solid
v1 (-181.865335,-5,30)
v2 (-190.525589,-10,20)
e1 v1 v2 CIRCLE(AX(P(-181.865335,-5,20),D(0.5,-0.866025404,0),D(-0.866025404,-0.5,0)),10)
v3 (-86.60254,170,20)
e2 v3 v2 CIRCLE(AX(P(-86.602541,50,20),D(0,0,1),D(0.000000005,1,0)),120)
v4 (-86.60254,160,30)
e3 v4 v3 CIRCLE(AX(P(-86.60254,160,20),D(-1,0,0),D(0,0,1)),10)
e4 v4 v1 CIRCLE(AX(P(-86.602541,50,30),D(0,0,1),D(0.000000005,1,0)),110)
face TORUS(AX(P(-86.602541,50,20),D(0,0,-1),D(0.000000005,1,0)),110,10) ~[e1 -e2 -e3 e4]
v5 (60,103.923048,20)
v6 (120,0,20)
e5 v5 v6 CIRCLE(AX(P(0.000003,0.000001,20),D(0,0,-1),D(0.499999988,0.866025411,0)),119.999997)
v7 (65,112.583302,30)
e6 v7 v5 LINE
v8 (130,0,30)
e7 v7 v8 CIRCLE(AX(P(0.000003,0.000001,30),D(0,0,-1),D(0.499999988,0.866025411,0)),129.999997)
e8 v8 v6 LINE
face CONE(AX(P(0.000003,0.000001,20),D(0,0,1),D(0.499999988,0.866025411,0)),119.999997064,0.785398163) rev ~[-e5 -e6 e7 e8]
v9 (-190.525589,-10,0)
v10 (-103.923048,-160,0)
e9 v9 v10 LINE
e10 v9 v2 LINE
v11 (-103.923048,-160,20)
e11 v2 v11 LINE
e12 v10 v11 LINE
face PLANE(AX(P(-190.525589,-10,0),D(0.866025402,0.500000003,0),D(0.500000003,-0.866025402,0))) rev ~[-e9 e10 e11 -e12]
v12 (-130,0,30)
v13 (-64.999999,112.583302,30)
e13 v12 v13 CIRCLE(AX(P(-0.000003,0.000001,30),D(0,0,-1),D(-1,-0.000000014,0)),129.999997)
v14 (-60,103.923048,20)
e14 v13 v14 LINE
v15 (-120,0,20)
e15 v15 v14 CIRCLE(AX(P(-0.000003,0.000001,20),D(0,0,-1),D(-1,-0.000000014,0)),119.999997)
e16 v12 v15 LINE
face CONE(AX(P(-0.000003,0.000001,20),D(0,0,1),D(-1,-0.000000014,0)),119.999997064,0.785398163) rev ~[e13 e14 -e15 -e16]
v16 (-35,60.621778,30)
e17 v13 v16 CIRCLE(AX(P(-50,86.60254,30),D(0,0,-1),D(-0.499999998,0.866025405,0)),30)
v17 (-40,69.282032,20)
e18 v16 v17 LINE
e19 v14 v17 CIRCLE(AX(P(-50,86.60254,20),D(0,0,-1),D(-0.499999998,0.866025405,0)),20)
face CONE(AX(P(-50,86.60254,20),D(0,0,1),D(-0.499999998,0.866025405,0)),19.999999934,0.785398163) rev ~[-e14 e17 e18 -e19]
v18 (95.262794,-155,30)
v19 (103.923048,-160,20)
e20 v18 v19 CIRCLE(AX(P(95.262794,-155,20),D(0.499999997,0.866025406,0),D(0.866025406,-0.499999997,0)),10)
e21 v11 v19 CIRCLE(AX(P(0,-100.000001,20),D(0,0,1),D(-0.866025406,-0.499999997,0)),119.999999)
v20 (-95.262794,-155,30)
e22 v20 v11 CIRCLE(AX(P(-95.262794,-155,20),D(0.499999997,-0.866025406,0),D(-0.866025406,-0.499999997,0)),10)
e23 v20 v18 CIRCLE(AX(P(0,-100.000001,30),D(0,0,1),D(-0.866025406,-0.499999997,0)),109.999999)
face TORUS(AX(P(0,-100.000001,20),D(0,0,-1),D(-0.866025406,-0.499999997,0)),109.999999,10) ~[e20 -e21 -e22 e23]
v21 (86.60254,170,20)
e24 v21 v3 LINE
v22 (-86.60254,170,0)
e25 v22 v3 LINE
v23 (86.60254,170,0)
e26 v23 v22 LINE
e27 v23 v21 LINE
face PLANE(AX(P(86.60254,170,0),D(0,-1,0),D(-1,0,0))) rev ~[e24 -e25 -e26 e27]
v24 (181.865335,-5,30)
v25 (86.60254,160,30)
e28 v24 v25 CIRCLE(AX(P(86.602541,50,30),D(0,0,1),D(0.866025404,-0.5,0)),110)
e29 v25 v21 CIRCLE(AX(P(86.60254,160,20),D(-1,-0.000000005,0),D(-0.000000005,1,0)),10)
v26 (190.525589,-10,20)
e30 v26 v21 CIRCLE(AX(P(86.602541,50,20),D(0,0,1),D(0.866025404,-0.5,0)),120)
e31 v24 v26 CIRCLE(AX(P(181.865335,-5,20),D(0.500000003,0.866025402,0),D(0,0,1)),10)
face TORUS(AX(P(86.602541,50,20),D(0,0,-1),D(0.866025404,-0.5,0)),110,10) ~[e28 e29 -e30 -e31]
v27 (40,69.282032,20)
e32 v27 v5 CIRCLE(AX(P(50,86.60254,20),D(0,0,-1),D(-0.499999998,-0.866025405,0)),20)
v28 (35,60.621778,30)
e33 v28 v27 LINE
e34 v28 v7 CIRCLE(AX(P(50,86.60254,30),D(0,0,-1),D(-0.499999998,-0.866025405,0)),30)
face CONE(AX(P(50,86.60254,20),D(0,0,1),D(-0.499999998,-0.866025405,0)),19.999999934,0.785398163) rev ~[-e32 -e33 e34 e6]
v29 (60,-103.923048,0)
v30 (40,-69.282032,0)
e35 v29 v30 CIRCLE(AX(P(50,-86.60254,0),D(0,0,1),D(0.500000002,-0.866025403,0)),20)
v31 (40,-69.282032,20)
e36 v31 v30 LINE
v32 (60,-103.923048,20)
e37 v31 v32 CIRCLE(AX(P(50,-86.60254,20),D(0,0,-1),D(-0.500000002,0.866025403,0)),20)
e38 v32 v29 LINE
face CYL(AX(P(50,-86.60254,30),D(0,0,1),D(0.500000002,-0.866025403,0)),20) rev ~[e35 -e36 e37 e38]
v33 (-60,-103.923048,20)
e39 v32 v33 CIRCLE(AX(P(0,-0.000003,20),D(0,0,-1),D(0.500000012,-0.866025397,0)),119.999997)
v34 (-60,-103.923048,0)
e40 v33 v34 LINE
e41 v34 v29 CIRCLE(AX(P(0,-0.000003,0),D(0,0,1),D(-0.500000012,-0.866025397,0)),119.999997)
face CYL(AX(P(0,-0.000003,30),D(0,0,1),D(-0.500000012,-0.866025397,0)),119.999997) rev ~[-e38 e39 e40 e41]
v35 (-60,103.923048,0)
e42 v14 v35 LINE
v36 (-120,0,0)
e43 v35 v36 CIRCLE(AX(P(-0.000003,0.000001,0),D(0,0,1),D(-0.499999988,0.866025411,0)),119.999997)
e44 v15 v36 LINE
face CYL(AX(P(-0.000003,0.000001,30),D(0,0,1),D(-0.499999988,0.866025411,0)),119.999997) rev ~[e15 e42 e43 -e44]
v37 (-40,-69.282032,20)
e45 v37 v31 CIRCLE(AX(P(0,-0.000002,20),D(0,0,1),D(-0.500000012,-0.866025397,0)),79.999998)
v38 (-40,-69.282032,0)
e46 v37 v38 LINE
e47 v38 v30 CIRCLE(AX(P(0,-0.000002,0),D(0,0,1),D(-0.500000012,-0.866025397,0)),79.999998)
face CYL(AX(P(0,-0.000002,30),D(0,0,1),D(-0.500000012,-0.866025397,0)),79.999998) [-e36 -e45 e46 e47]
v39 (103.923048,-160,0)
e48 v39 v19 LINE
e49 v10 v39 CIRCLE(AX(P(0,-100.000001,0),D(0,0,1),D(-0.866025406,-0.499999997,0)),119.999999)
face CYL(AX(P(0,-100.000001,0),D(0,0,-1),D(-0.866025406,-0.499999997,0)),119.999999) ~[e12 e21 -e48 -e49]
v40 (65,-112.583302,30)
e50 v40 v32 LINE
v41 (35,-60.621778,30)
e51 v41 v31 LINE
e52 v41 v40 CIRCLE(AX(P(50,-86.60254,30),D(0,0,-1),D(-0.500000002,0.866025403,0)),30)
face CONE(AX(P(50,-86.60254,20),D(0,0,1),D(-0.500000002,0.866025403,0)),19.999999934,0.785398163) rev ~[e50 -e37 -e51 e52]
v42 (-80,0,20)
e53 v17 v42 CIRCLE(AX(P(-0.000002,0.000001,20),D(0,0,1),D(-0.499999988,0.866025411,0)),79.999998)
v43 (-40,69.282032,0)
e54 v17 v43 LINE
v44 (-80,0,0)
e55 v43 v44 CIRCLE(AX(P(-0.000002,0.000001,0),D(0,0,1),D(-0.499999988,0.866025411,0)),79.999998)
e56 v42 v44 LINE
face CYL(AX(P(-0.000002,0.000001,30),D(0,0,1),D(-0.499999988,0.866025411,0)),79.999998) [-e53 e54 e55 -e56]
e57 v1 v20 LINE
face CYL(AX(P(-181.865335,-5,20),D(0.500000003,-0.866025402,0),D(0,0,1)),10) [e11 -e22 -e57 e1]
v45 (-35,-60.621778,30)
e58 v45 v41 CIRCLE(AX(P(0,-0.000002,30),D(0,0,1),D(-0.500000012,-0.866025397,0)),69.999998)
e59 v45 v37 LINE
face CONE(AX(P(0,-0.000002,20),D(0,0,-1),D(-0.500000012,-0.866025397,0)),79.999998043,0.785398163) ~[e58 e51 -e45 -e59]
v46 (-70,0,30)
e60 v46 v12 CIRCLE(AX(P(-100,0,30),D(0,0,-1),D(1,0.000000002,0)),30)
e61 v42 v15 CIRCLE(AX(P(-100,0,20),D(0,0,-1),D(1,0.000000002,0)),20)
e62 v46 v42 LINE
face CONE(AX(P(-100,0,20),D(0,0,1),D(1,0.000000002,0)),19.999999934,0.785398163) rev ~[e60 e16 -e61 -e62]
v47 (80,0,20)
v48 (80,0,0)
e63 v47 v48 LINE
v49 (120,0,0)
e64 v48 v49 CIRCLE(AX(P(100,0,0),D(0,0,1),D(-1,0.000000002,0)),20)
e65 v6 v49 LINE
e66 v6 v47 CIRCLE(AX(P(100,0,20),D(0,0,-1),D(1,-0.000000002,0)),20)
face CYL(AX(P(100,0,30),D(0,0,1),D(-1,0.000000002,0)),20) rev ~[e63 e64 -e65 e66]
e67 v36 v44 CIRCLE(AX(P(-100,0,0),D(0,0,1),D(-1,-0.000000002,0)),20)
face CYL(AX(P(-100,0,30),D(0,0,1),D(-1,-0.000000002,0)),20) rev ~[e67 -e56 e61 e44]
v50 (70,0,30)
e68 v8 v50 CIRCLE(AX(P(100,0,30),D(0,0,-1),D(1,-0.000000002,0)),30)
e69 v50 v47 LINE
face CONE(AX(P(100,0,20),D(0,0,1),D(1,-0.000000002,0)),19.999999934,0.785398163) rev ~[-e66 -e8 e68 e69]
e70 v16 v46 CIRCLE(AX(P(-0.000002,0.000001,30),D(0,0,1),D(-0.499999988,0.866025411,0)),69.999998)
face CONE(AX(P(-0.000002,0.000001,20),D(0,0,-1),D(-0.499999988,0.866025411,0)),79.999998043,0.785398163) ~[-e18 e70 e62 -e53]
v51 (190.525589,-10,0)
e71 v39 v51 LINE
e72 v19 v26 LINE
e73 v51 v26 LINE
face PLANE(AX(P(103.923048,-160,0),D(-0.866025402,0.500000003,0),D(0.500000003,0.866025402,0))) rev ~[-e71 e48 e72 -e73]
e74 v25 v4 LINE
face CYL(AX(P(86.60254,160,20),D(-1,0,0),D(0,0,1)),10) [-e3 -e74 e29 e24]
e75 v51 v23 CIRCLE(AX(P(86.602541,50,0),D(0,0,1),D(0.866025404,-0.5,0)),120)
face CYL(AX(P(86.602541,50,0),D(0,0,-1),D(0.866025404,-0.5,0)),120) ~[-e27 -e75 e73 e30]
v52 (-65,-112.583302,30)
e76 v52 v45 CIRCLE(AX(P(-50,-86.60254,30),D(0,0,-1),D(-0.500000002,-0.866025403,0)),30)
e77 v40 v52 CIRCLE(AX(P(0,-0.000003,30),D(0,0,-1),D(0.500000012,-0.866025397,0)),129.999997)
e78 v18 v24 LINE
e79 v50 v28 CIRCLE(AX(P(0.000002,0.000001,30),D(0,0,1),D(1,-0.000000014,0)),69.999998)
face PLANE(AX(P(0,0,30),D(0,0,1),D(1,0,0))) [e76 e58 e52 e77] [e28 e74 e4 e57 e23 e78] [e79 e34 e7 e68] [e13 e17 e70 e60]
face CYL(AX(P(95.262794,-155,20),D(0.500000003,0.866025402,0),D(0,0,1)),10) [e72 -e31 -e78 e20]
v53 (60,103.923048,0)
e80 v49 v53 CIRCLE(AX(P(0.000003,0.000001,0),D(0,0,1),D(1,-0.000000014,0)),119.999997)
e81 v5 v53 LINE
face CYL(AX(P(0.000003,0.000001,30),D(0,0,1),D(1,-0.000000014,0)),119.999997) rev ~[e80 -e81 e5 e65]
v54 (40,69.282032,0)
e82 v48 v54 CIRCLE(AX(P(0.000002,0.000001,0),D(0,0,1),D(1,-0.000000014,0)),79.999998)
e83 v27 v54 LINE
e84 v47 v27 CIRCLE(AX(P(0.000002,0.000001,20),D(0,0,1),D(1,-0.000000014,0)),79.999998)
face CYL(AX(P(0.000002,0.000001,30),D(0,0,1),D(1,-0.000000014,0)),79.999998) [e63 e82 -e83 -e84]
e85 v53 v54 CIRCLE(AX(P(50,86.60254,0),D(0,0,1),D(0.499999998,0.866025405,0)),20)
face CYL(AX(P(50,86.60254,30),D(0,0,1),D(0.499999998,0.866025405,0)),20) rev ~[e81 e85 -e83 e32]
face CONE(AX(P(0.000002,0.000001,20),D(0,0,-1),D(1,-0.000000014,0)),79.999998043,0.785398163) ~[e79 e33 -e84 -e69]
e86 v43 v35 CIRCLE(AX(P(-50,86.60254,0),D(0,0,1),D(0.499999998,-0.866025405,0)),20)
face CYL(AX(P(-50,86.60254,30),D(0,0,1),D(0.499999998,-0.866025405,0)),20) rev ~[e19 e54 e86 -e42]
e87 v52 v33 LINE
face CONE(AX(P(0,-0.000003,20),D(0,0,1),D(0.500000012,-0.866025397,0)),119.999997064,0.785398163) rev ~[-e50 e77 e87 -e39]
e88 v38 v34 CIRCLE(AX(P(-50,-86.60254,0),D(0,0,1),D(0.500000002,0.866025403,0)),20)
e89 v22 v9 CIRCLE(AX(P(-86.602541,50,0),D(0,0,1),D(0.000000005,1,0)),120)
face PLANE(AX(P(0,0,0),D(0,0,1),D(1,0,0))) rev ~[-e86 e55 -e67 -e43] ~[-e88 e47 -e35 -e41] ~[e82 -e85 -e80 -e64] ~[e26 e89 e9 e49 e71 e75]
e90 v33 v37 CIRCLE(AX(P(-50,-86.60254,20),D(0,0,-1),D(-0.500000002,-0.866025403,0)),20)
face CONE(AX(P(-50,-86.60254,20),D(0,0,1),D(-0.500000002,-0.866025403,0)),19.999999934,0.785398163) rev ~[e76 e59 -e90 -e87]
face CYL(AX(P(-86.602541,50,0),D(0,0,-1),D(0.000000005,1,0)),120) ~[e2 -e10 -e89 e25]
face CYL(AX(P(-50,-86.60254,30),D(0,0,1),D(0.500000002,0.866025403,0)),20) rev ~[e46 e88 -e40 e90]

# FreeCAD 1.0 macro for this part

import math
import FreeCAD as App
import Part
import Sketcher
Q = App.Units.Quantity


def edges_at(feature, points):
    """Names of the edges that pass closest to the given points."""
    edges = feature.Shape.Edges
    near = lambda p: min(range(len(edges)), key=lambda i: edges[i].distToShape(Part.Vertex(*p))[0])
    return sorted({f"Edge{near(p) + 1}" for p in points})

doc = App.newDocument("Part")
body = doc.addObject("PartDesign::Body", "Body")

sketch1 = body.newObject("Sketcher::SketchObject", "Sketch")
sketch1.AttachmentSupport = (doc.getObject("XY_Plane"), [""])
sketch1.MapMode = "FlatFace"
sketch1.addGeometry([
    Part.LineSegment(App.Vector(104, -160, 0), App.Vector(191, -10, 0)),
    Part.ArcOfCircle(Part.Circle(App.Vector(87, 50, 0), App.Vector(0, 0, 1), 120), math.radians(-30), math.radians(90)),
    Part.LineSegment(App.Vector(87, 170, 0), App.Vector(-87, 170, 0)),
    Part.ArcOfCircle(Part.Circle(App.Vector(-87, 50, 0), App.Vector(0, 0, 1), 120), math.radians(90), math.radians(210)),
    Part.LineSegment(App.Vector(-191, -10, 0), App.Vector(-104, -160, 0)),
    Part.ArcOfCircle(Part.Circle(App.Vector(0, -100, 0), App.Vector(0, 0, 1), 120), math.radians(-150), math.radians(-30)),
], False)
sketch1.addConstraint([
    Sketcher.Constraint("Tangent", 0, 2, 1, 1),
    Sketcher.Constraint("Tangent", 1, 2, 2, 1),
    Sketcher.Constraint("Tangent", 2, 2, 3, 1),
    Sketcher.Constraint("Tangent", 3, 2, 4, 1),
    Sketcher.Constraint("Tangent", 4, 2, 5, 1),
    Sketcher.Constraint("Tangent", 5, 2, 0, 1),
    Sketcher.Constraint("Horizontal", 2),
    Sketcher.Constraint("Equal", 1, 3),
    Sketcher.Constraint("Equal", 3, 5),
    Sketcher.Constraint("Symmetric", 0, 2, 3, 2, -2),
    Sketcher.Constraint("Radius", 1, Q("120 mm")),
    Sketcher.Constraint("Angle", 0, Q("60 deg")),
    Sketcher.Constraint("DistanceY", -1, 1, 1, 3, Q("50 mm")),
    Sketcher.Constraint("DistanceY", 5, 3, -1, 1, Q("100.000001 mm")),
])
pad1 = body.newObject("PartDesign::Pad", "Pad")
pad1.Profile = sketch1
pad1.Length = 30

sketch2 = body.newObject("Sketcher::SketchObject", "Sketch001")
sketch2.AttachmentSupport = (doc.getObject("XY_Plane"), [""])
sketch2.MapMode = "FlatFace"
sketch2.AttachmentOffset = App.Placement(App.Vector(0, 0, 30), App.Rotation())
sketch2.addGeometry([
    Part.ArcOfCircle(Part.Circle(App.Vector(-50, -87, 0), App.Vector(0, 0, 1), 20), math.radians(60), math.radians(240)),
    Part.ArcOfCircle(Part.Circle(App.Vector(0, 0, 0), App.Vector(0, 0, 1), 120), math.radians(-120), math.radians(-60)),
    Part.ArcOfCircle(Part.Circle(App.Vector(50, -87, 0), App.Vector(0, 0, 1), 20), math.radians(-60), math.radians(120)),
    Part.ArcOfCircle(Part.Circle(App.Vector(0, 0, 0), App.Vector(0, 0, 1), 80), math.radians(-120), math.radians(-60)),
], False)
sketch2.addConstraint([
    Sketcher.Constraint("Tangent", 0, 2, 1, 1),
    Sketcher.Constraint("Tangent", 1, 2, 2, 1),
    Sketcher.Constraint("Tangent", 2, 2, 3, 2),
    Sketcher.Constraint("Tangent", 3, 1, 0, 1),
    Sketcher.Constraint("Coincident", 1, 3, -1, 1),
    Sketcher.Constraint("Coincident", 3, 3, -1, 1),
    Sketcher.Constraint("Horizontal", 0, 3, 2, 3),
    Sketcher.Constraint("Radius", 0, Q("20 mm")),
    Sketcher.Constraint("Radius", 3, Q("79.999998 mm")),
    Sketcher.Constraint("DistanceX", 0, 3, -1, 1, Q("50 mm")),
])
pocket1 = body.newObject("PartDesign::Pocket", "Pocket")
pocket1.Profile = sketch2
pocket1.Type = "ThroughAll"
doc.recompute()

polarpattern = body.newObject("PartDesign::PolarPattern", "PolarPattern")
polarpattern.Originals = [pocket1]
polarpattern.Axis = (doc.getObject("Z_Axis"), [""])
polarpattern.Angle = 360
polarpattern.Occurrences = 3
body.Tip = polarpattern
doc.recompute()

chamfer = body.newObject("PartDesign::Chamfer", "Chamfer")
chamfer.Base = (polarpattern, edges_at(polarpattern, [(69.282, 40, 30), (0, -80, 30), (-69.282, 40, 30)]))
chamfer.Size = 10
doc.recompute()

fillet = body.newObject("PartDesign::Fillet", "Fillet")
fillet.Base = (chamfer, edges_at(chamfer, [(0, -220, 30)]))
fillet.Radius = 10

doc.recompute()
